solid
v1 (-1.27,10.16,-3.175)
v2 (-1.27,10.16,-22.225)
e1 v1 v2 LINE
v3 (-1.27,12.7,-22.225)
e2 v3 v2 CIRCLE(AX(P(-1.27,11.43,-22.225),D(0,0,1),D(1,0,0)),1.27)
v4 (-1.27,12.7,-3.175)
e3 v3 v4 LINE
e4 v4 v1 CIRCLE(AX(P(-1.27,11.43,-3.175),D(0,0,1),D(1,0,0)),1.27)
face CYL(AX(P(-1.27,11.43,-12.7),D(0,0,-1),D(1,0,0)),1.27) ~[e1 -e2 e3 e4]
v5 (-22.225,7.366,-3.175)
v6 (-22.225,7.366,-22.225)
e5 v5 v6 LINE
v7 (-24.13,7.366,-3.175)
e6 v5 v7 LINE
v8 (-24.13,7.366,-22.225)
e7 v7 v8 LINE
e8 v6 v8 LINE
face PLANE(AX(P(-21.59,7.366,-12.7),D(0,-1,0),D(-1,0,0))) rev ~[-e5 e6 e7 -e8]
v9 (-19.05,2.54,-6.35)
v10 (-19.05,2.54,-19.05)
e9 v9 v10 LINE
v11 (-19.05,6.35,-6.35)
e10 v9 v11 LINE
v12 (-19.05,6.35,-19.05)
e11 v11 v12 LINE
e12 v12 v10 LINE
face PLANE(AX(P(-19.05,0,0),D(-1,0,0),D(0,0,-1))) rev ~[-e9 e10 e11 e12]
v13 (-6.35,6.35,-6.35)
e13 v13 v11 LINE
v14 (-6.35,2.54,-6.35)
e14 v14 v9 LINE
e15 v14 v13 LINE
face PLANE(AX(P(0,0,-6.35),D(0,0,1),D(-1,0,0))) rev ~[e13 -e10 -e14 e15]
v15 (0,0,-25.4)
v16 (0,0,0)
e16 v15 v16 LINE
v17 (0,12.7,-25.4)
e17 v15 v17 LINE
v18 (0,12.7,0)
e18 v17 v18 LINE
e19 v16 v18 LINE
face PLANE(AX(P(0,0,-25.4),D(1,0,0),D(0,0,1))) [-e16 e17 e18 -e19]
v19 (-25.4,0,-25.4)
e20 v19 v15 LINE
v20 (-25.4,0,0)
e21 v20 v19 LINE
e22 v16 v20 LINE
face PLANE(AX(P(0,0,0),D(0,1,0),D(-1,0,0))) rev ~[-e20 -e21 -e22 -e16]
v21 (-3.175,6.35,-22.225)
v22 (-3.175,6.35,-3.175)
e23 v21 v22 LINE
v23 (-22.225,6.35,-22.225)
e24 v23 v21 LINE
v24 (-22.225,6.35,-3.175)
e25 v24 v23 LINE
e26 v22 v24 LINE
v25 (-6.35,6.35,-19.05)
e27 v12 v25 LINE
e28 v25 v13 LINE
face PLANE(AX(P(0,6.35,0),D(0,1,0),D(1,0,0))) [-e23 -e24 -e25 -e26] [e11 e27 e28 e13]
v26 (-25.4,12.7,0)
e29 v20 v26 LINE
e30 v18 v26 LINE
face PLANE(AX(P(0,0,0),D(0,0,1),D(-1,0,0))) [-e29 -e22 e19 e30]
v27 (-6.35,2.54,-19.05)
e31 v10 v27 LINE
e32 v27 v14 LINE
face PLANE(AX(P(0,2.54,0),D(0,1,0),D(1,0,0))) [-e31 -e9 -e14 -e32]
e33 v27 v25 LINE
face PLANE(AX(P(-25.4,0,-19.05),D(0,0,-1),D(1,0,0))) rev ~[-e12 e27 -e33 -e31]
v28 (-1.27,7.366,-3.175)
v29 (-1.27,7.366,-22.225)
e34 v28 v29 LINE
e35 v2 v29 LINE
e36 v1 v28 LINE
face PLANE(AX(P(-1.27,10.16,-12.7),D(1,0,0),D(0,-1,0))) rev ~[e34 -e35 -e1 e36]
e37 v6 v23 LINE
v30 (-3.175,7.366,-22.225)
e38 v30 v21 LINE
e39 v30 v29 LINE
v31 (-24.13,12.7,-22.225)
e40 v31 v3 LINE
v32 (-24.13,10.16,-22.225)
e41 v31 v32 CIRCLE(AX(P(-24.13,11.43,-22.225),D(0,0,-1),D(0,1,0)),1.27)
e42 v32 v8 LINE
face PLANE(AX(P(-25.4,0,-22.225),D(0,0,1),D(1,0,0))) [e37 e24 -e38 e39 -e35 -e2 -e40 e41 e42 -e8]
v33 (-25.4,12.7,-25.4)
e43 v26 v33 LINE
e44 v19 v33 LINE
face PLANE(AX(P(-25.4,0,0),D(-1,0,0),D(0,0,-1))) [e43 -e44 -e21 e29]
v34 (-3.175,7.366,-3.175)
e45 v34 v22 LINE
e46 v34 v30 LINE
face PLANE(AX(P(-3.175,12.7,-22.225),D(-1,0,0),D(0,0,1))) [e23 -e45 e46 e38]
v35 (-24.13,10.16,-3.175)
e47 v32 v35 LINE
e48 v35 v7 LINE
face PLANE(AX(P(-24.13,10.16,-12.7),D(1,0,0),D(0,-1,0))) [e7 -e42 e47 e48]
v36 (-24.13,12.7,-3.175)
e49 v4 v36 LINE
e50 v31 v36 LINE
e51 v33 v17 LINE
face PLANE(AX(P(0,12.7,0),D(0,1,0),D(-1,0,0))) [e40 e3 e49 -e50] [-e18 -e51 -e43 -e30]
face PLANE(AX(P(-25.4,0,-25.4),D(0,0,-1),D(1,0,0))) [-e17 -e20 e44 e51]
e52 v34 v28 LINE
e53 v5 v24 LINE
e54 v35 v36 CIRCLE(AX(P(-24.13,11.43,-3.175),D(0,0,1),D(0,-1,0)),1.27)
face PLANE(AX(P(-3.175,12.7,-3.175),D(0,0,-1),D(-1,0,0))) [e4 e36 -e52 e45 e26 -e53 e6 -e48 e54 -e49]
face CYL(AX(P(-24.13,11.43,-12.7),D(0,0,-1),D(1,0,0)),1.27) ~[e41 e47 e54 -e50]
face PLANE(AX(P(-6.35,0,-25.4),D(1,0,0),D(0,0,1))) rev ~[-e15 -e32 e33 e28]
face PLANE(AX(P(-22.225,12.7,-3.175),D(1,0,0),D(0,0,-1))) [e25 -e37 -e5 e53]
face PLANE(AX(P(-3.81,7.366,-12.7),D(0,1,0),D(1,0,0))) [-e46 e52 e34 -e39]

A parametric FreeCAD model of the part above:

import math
import FreeCAD as App
import Part
import Sketcher
Q = App.Units.Quantity


def faces_at(feature, points):
    """Names of the faces that lie closest to the given points."""
    faces = feature.Shape.Faces
    near = lambda p: min(range(len(faces)), key=lambda i: faces[i].distToShape(Part.Vertex(*p))[0])
    return sorted({f"Face{near(p) + 1}" for p in points})


def add_polygon(sketch, points):
    """Adds a closed chain of lines whose ends are joined by coincident constraints."""
    first, n = sketch.GeometryCount, len(points)
    for a, b in zip(points, points[1:] + points[:1]):
        sketch.addGeometry(Part.LineSegment(App.Vector(*a, 0), App.Vector(*b, 0)), False)
    for i in range(n):
        sketch.addConstraint(Sketcher.Constraint("Coincident", first + i, 2, first + (i + 1) % n, 1))

doc = App.newDocument("Part")
params = doc.addObject("Spreadsheet::Sheet", "Params")
for row, (alias, value) in enumerate([
    ("sketch1_width", "1 in"),
    ("pad1_length", "0.5 in"),
    ("thickness_wall", "0.25 in"),
    ("sketch2_width", "0.5 in"),
    ("pocket1_length", "0.4 in"),
    ("sketch3_width", "0.75 in"),
    ("sketch3_width2", "0.5 in"),
    ("pocket2_length", "0.25 in"),
    ("sketch4_radius", "0.05 in"),
    ("sketch4_width", "0.1 in"),
    ("sketch4_height", "0.21 in"),
    ("pocket3_length", "0.75 in"),
], start=1):
    params.set(f"A{row}", alias)
    params.set(f"B{row}", "=" + value)
    params.setAlias(f"B{row}", alias)

body = doc.addObject("PartDesign::Body", "Body")

# Sketch on XZ plane
sketch1 = doc.addObject("Sketcher::SketchObject", "Sketch")
body.addObject(sketch1)
sketch1.AttachmentSupport = (doc.XZ_Plane, [""])
sketch1.MapMode = "FlatFace"
add_polygon(sketch1, [(-25.4, 0), (0, 0), (0, -25.4), (-25.4, -25.4)])  # lines 0-3
sketch1.addConstraint(Sketcher.Constraint("Horizontal", 0))
sketch1.addConstraint(Sketcher.Constraint("Vertical", 1))
sketch1.addConstraint(Sketcher.Constraint("Horizontal", 2))
sketch1.addConstraint(Sketcher.Constraint("Vertical", 3))
sketch1.addConstraint(Sketcher.Constraint("Coincident", 0, 2, -1, 1))
sketch1.addConstraint(Sketcher.Constraint("Equal", 2, 1))
sketch1.addConstraint(Sketcher.Constraint("DistanceX", 0, 1, 0, 2, Q("1 in")))
sketch1.setExpression("Constraints[10]", "Params.sketch1_width")
pad1 = doc.addObject("PartDesign::Pad", "Pad")
body.addObject(pad1)
pad1.Profile = sketch1
pad1.setExpression("Length", "Params.pad1_length")
pad1.Reversed = True
doc.recompute()

thickness = doc.addObject("PartDesign::Thickness", "Thickness")
body.addObject(thickness)
thickness.Base = (pad1, faces_at(pad1, [(-8.467, 12.7, -8.467)]))
thickness.setExpression("Value", "Params.thickness_wall")
thickness.Reversed = True
thickness.Join = "Intersection"

# Sketch on XZ plane
sketch2 = doc.addObject("Sketcher::SketchObject", "Sketch001")
body.addObject(sketch2)
sketch2.AttachmentSupport = (doc.XZ_Plane, [""])
sketch2.MapMode = "FlatFace"
sketch2.AttachmentOffset = App.Placement(App.Vector(0, 0, -0.5 * 25.4), App.Rotation())
add_polygon(sketch2, [(-6.35, -19.05), (-19.05, -19.05), (-19.05, -6.35), (-6.35, -6.35)])  # lines 0-3
sketch2.addConstraint(Sketcher.Constraint("Horizontal", 0))
sketch2.addConstraint(Sketcher.Constraint("Vertical", 1))
sketch2.addConstraint(Sketcher.Constraint("Horizontal", 2))
sketch2.addConstraint(Sketcher.Constraint("Vertical", 3))
sketch2.addConstraint(Sketcher.Constraint("Equal", 2, 1))
sketch2.addConstraint(Sketcher.Constraint("DistanceX", 0, 2, -1, 1, Q("0.75 in")))
sketch2.addConstraint(Sketcher.Constraint("DistanceY", 0, 2, -1, 1, Q("0.75 in")))
sketch2.addConstraint(Sketcher.Constraint("DistanceX", 0, 2, 0, 1, Q("0.5 in")))
sketch2.setExpression("Constraints[11]", "Params.sketch2_width")
pocket1 = doc.addObject("PartDesign::Pocket", "Pocket")
body.addObject(pocket1)
pocket1.Profile = sketch2
pocket1.setExpression("Length", "Params.pocket1_length")
pocket1.Reversed = True

# Sketch on XZ plane
sketch3 = doc.addObject("Sketcher::SketchObject", "Sketch002")
body.addObject(sketch3)
sketch3.AttachmentSupport = (doc.XZ_Plane, [""])
sketch3.MapMode = "FlatFace"
sketch3.AttachmentOffset = App.Placement(App.Vector(0, 0, -0.5 * 25.4), App.Rotation())
add_polygon(sketch3, [(-3.175, -22.225), (-22.225, -22.225), (-22.225, -3.175), (-3.175, -3.175)])  # lines 0-3
add_polygon(sketch3, [(-19.05, -6.35), (-19.05, -19.05), (-6.35, -19.05), (-6.35, -6.35)])  # lines 4-7
sketch3.addConstraint(Sketcher.Constraint("Horizontal", 0))
sketch3.addConstraint(Sketcher.Constraint("Vertical", 1))
sketch3.addConstraint(Sketcher.Constraint("Horizontal", 2))
sketch3.addConstraint(Sketcher.Constraint("Vertical", 3))
sketch3.addConstraint(Sketcher.Constraint("Vertical", 4))
sketch3.addConstraint(Sketcher.Constraint("Horizontal", 5))
sketch3.addConstraint(Sketcher.Constraint("Vertical", 6))
sketch3.addConstraint(Sketcher.Constraint("Horizontal", 7))
sketch3.addConstraint(Sketcher.Constraint("Equal", 2, 1))
sketch3.addConstraint(Sketcher.Constraint("Equal", 7, 4))
sketch3.addConstraint(Sketcher.Constraint("DistanceX", 0, 2, 0, 1, Q("0.75 in")))
sketch3.addConstraint(Sketcher.Constraint("DistanceX", 4, 2, -1, 1, Q("0.75 in")))
sketch3.addConstraint(Sketcher.Constraint("DistanceY", 4, 2, -1, 1, Q("0.75 in")))
sketch3.addConstraint(Sketcher.Constraint("DistanceX", 5, 1, 5, 2, Q("0.5 in")))
sketch3.addConstraint(Sketcher.Constraint("DistanceY", 1, 2, -1, 1, Q("0.125 in")))
sketch3.addConstraint(Sketcher.Constraint("DistanceX", 2, 2, -1, 1, Q("0.125 in")))
sketch3.setExpression("Constraints[18]", "Params.sketch3_width")
sketch3.setExpression("Constraints[21]", "Params.sketch3_width2")
pocket2 = doc.addObject("PartDesign::Pocket", "Pocket001")
body.addObject(pocket2)
pocket2.Profile = sketch3
pocket2.setExpression("Length", "Params.pocket2_length")
pocket2.Reversed = True

# Sketch on XY plane
sketch4 = doc.addObject("Sketcher::SketchObject", "Sketch003")
body.addObject(sketch4)
sketch4.AttachmentSupport = (doc.XY_Plane, [""])
sketch4.MapMode = "FlatFace"
sketch4.AttachmentOffset = App.Placement(App.Vector(0, 0, -0.5 * 25.4), App.Rotation())
sketch4.addGeometry(Part.LineSegment(App.Vector(-21.59, 7.366, 0), App.Vector(-21.59, 12.7, 0)), False)
sketch4.addGeometry(Part.LineSegment(App.Vector(-21.59, 12.7, 0), App.Vector(-24.13, 12.7, 0)), False)
sketch4.addGeometry(Part.ArcOfCircle(Part.Circle(App.Vector(-24.13, 11.43, 0), App.Vector(0, 0, 1), 1.27), math.radians(-90), math.radians(90)), False)
sketch4.addGeometry(Part.LineSegment(App.Vector(-24.13, 10.16, 0), App.Vector(-24.13, 7.366, 0)), False)
sketch4.addGeometry(Part.LineSegment(App.Vector(-24.13, 7.366, 0), App.Vector(-21.59, 7.366, 0)), False)
sketch4.addGeometry(Part.ArcOfCircle(Part.Circle(App.Vector(-1.27, 11.43, 0), App.Vector(0, 0, 1), 1.27), math.radians(90), math.radians(270)), False)
sketch4.addGeometry(Part.LineSegment(App.Vector(-1.27, 12.7, 0), App.Vector(-3.81, 12.7, 0)), False)
sketch4.addGeometry(Part.LineSegment(App.Vector(-3.81, 12.7, 0), App.Vector(-3.81, 7.366, 0)), False)
sketch4.addGeometry(Part.LineSegment(App.Vector(-3.81, 7.366, 0), App.Vector(-1.27, 7.366, 0)), False)
sketch4.addGeometry(Part.LineSegment(App.Vector(-1.27, 7.366, 0), App.Vector(-1.27, 10.16, 0)), False)
sketch4.addConstraint(Sketcher.Constraint("Coincident", 0, 2, 1, 1))
sketch4.addConstraint(Sketcher.Constraint("Tangent", 1, 2, 2, 2))
sketch4.addConstraint(Sketcher.Constraint("Coincident", 2, 1, 3, 1))
sketch4.addConstraint(Sketcher.Constraint("Coincident", 3, 2, 4, 1))
sketch4.addConstraint(Sketcher.Constraint("Coincident", 4, 2, 0, 1))
sketch4.addConstraint(Sketcher.Constraint("Tangent", 5, 1, 6, 1))
sketch4.addConstraint(Sketcher.Constraint("Coincident", 6, 2, 7, 1))
sketch4.addConstraint(Sketcher.Constraint("Coincident", 7, 2, 8, 1))
sketch4.addConstraint(Sketcher.Constraint("Coincident", 8, 2, 9, 1))
sketch4.addConstraint(Sketcher.Constraint("Coincident", 9, 2, 5, 2))
sketch4.addConstraint(Sketcher.Constraint("Vertical", 0))
sketch4.addConstraint(Sketcher.Constraint("Horizontal", 1))
sketch4.addConstraint(Sketcher.Constraint("Vertical", 3))
sketch4.addConstraint(Sketcher.Constraint("Horizontal", 4))
sketch4.addConstraint(Sketcher.Constraint("Horizontal", 6))
sketch4.addConstraint(Sketcher.Constraint("Vertical", 7))
sketch4.addConstraint(Sketcher.Constraint("Horizontal", 8))
sketch4.addConstraint(Sketcher.Constraint("Vertical", 9))
sketch4.addConstraint(Sketcher.Constraint("Equal", 2, 5))
sketch4.addConstraint(Sketcher.Constraint("Horizontal", 2, 3, 5, 3))
sketch4.addConstraint(Sketcher.Constraint("Horizontal", 4, 2, 7, 2))
sketch4.addConstraint(Sketcher.Constraint("Vertical", 1, 2, 2, 1))
sketch4.addConstraint(Sketcher.Constraint("Vertical", 5, 1, 8, 2))
sketch4.addConstraint(Sketcher.Constraint("Equal", 4, 6))
sketch4.addConstraint(Sketcher.Constraint("Radius", 2, Q("0.05 in")))
sketch4.addConstraint(Sketcher.Constraint("DistanceX", 1, 2, 1, 1, Q("0.1 in")))
sketch4.addConstraint(Sketcher.Constraint("DistanceY", 0, 1, 0, 2, Q("0.21 in")))
sketch4.addConstraint(Sketcher.Constraint("DistanceX", 5, 3, -1, 1, Q("0.05 in")))
sketch4.addConstraint(Sketcher.Constraint("DistanceY", -1, 1, 0, 2, Q("0.5 in")))
sketch4.addConstraint(Sketcher.Constraint("DistanceX", 2, 3, 5, 3, Q("0.9 in")))
sketch4.setExpression("Constraints[24]", "Params.sketch4_radius")
sketch4.setExpression("Constraints[25]", "Params.sketch4_width")
sketch4.setExpression("Constraints[26]", "Params.sketch4_height")
pocket3 = doc.addObject("PartDesign::Pocket", "Pocket002")
body.addObject(pocket3)
pocket3.Profile = sketch4
pocket3.setExpression("Length", "Params.pocket3_length")
pocket3.Midplane = True

doc.recompute()
